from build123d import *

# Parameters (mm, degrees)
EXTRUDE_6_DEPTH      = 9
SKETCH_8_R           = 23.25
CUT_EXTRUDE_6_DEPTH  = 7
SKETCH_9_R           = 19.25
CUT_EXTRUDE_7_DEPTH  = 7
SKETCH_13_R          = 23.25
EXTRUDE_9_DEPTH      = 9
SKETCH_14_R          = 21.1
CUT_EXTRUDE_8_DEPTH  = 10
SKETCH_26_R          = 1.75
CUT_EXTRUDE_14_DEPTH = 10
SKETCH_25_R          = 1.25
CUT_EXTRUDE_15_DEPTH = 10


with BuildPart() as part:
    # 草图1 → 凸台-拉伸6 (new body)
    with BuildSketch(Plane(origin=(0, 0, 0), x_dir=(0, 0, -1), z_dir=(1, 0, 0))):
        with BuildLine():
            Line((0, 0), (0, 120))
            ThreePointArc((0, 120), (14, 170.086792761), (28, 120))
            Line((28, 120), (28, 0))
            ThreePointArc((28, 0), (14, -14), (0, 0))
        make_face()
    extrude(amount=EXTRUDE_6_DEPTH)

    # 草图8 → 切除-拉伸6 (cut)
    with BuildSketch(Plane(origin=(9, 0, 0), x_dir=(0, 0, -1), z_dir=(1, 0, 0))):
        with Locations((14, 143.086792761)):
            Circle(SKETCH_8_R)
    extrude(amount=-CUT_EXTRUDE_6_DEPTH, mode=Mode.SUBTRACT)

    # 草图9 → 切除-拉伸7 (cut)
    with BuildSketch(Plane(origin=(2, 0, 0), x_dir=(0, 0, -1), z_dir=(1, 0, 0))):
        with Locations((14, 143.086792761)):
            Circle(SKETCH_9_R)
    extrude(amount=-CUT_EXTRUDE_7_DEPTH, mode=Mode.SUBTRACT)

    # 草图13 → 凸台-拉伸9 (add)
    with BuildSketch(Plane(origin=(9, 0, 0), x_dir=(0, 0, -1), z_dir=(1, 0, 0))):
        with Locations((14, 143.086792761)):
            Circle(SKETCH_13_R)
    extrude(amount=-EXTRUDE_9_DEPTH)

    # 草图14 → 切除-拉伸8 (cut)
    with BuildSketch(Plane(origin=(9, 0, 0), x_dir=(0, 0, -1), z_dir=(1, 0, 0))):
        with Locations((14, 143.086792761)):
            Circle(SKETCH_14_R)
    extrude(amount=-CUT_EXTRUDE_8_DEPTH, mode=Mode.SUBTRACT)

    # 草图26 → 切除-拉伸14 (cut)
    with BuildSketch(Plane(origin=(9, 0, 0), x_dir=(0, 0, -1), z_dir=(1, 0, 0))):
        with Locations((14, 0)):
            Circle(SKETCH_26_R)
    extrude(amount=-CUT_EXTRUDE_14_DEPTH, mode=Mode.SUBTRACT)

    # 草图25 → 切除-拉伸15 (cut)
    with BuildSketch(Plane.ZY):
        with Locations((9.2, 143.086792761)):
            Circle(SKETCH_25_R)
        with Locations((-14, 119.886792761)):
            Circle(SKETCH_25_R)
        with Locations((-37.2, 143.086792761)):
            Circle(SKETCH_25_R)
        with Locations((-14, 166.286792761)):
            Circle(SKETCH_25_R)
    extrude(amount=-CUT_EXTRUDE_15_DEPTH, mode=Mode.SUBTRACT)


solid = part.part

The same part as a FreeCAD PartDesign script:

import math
import FreeCAD as App
import Part
import Sketcher

V = App.Vector
Q = App.Units.Quantity

doc = App.newDocument("Part")
body = doc.addObject("PartDesign::Body", "Body")

sketch1 = body.newObject("Sketcher::SketchObject", "Sketch")
sketch1.AttachmentSupport = (doc.getObject("YZ_Plane"), [""])
sketch1.MapMode = "FlatFace"
sketch1.addGeometry([
    Part.LineSegment(V(120, 0, 0), V(0, 0, 0)),
    Part.ArcOfCircle(Part.Circle(V(0, -14, 0), V(0, 0, 1), 14), math.radians(90), math.radians(270)),
    Part.LineSegment(V(0, -28, 0), V(120, -28, 0)),
    Part.ArcOfCircle(Part.Circle(V(143.086793, -14, 0), V(0, 0, 1), 27), math.radians(-148.767071), math.radians(148.767071)),
], False)
sketch1.addConstraint([
    Sketcher.Constraint("Tangent", 0, 2, 1, 1),
    Sketcher.Constraint("Tangent", 1, 2, 2, 1),
    Sketcher.Constraint("Coincident", 2, 2, 3, 1),
    Sketcher.Constraint("Coincident", 3, 2, 0, 1),
    Sketcher.Constraint("Horizontal", 0),
    Sketcher.Constraint("Horizontal", 2),
    Sketcher.Constraint("Coincident", 0, 2, -1, 1),
    Sketcher.Constraint("Horizontal", 1, 3, 3, 3),
    Sketcher.Constraint("Radius", 1, Q("14 mm")),
    Sketcher.Constraint("Radius", 3, Q("27 mm")),
    Sketcher.Constraint("DistanceX", 0, 2, 0, 1, Q("120 mm")),
])
pad1 = body.newObject("PartDesign::Pad", "Pad")
pad1.Profile = sketch1
pad1.Length = 9

sketch2 = body.newObject("Sketcher::SketchObject", "Sketch001")
sketch2.AttachmentSupport = (doc.getObject("YZ_Plane"), [""])
sketch2.MapMode = "FlatFace"
sketch2.AttachmentOffset = App.Placement(V(0, 0, 9), App.Rotation())
sketch2.addGeometry(Part.Circle(V(143.086793, -14, 0), V(0, 0, 1), 23.25), False)
sketch2.addConstraint([
    Sketcher.Constraint("Diameter", 0, Q("46.5 mm")),
    Sketcher.Constraint("DistanceY", 0, 3, -1, 1, Q("14 mm")),
    Sketcher.Constraint("DistanceX", -1, 1, 0, 3, Q("143.086793 mm")),
])
pocket1 = body.newObject("PartDesign::Pocket", "Pocket")
pocket1.Profile = sketch2
pocket1.Length = 7

sketch3 = body.newObject("Sketcher::SketchObject", "Sketch002")
sketch3.AttachmentSupport = (doc.getObject("YZ_Plane"), [""])
sketch3.MapMode = "FlatFace"
sketch3.AttachmentOffset = App.Placement(V(0, 0, 2), App.Rotation())
sketch3.addGeometry(Part.Circle(V(143.086793, -14, 0), V(0, 0, 1), 19.25), False)
sketch3.addConstraint([
    Sketcher.Constraint("Diameter", 0, Q("38.5 mm")),
    Sketcher.Constraint("DistanceY", 0, 3, -1, 1, Q("14 mm")),
    Sketcher.Constraint("DistanceX", -1, 1, 0, 3, Q("143.086793 mm")),
])
pocket2 = body.newObject("PartDesign::Pocket", "Pocket001")
pocket2.Profile = sketch3
pocket2.Length = 7

sketch4 = body.newObject("Sketcher::SketchObject", "Sketch003")
sketch4.AttachmentSupport = (doc.getObject("YZ_Plane"), [""])
sketch4.MapMode = "FlatFace"
sketch4.AttachmentOffset = App.Placement(V(0, 0, 9), App.Rotation())
sketch4.addGeometry(Part.Circle(V(143.086793, -14, 0), V(0, 0, 1), 23.25), False)
sketch4.addConstraint([
    Sketcher.Constraint("Diameter", 0, Q("46.5 mm")),
    Sketcher.Constraint("DistanceY", 0, 3, -1, 1, Q("14 mm")),
    Sketcher.Constraint("DistanceX", -1, 1, 0, 3, Q("143.086793 mm")),
])
pad2 = body.newObject("PartDesign::Pad", "Pad001")
pad2.Profile = sketch4
pad2.Length = 9
pad2.Reversed = True

sketch5 = body.newObject("Sketcher::SketchObject", "Sketch004")
sketch5.AttachmentSupport = (doc.getObject("YZ_Plane"), [""])
sketch5.MapMode = "FlatFace"
sketch5.AttachmentOffset = App.Placement(V(0, 0, 9), App.Rotation())
sketch5.addGeometry(Part.Circle(V(143.086793, -14, 0), V(0, 0, 1), 21.1), False)
sketch5.addConstraint([
    Sketcher.Constraint("Diameter", 0, Q("42.2 mm")),
    Sketcher.Constraint("DistanceY", 0, 3, -1, 1, Q("14 mm")),
    Sketcher.Constraint("DistanceX", -1, 1, 0, 3, Q("143.086793 mm")),
])
pocket3 = body.newObject("PartDesign::Pocket", "Pocket002")
pocket3.Profile = sketch5
pocket3.Length = 10

sketch6 = body.newObject("Sketcher::SketchObject", "Sketch005")
sketch6.AttachmentSupport = (doc.getObject("YZ_Plane"), [""])
sketch6.MapMode = "FlatFace"
sketch6.AttachmentOffset = App.Placement(V(0, 0, 9), App.Rotation())
sketch6.addGeometry(Part.Circle(V(0, -14, 0), V(0, 0, 1), 1.75), False)
sketch6.addConstraint([
    Sketcher.Constraint("PointOnObject", 0, 3, -2),
    Sketcher.Constraint("Diameter", 0, Q("3.5 mm")),
    Sketcher.Constraint("DistanceY", 0, 3, -1, 1, Q("14 mm")),
])
pocket4 = body.newObject("PartDesign::Pocket", "Pocket003")
pocket4.Profile = sketch6
pocket4.Length = 10

sketch7 = body.newObject("Sketcher::SketchObject", "Sketch006")
sketch7.AttachmentSupport = (doc.getObject("YZ_Plane"), [""])
sketch7.MapMode = "FlatFace"
sketch7.addGeometry([
    Part.Circle(V(143.086793, 9.2, 0), V(0, 0, 1), 1.25),
    Part.Circle(V(119.886793, -14, 0), V(0, 0, 1), 1.25),
    Part.Circle(V(143.086793, -37.2, 0), V(0, 0, 1), 1.25),
    Part.Circle(V(166.286793, -14, 0), V(0, 0, 1), 1.25),
], False)
sketch7.addConstraint([
    Sketcher.Constraint("Equal", 0, 1),
    Sketcher.Constraint("Equal", 1, 2),
    Sketcher.Constraint("Equal", 2, 3),
    Sketcher.Constraint("Horizontal", 1, 3, 3, 3),
    Sketcher.Constraint("Vertical", 0, 3, 2, 3),
    Sketcher.Constraint("Diameter", 0, Q("2.5 mm")),
    Sketcher.Constraint("DistanceY", 1, 3, -1, 1, Q("14 mm")),
    Sketcher.Constraint("DistanceY", -1, 1, 0, 3, Q("9.2 mm")),
    Sketcher.Constraint("DistanceY", 2, 3, -1, 1, Q("37.2 mm")),
    Sketcher.Constraint("DistanceX", 1, 3, 0, 3, Q("23.2 mm")),
    Sketcher.Constraint("DistanceX", 0, 3, 3, 3, Q("23.2 mm")),
    Sketcher.Constraint("DistanceX", -1, 1, 0, 3, Q("143.086793 mm")),
])
pocket5 = body.newObject("PartDesign::Pocket", "Pocket004")
pocket5.Profile = sketch7
pocket5.Length = 10
pocket5.Reversed = True

doc.recompute()
